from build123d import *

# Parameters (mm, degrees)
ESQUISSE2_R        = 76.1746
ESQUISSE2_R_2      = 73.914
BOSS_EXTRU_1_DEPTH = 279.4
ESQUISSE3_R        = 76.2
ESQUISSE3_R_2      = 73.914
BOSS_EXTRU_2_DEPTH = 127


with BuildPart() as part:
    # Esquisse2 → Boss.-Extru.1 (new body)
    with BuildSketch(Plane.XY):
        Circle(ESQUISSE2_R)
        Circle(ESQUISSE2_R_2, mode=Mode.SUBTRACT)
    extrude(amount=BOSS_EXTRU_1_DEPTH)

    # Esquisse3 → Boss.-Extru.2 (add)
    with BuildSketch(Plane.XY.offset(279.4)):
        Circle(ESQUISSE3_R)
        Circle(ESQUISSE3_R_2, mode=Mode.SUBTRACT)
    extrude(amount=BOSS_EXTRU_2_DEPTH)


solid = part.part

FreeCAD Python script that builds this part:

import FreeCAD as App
import Part
import Sketcher

V = App.Vector
Q = App.Units.Quantity

doc = App.newDocument("Part")
params = doc.addObject("Spreadsheet::Sheet", "Params")
for row, (alias, value) in enumerate([
    ("sketch1_diameter", "5.82 in"),
    ("sketch1_diameter2", "5.998 in"),
    ("pad1_length", "11 in"),
    ("sketch2_diameter", "6 in"),
    ("sketch2_diameter2", "5.82 in"),
    ("pad2_length", "5 in"),
], start=1):
    params.set(f"A{row}", alias)
    params.set(f"B{row}", "=" + value)
    params.setAlias(f"B{row}", alias)

body = doc.addObject("PartDesign::Body", "Body")

# Sketch on XY plane
sketch1 = body.newObject("Sketcher::SketchObject", "Sketch")
sketch1.AttachmentSupport = (doc.getObject("XY_Plane"), [""])
sketch1.MapMode = "FlatFace"
sketch1.addGeometry([
    Part.Circle(V(0, 0, 0), V(0, 0, 1), 76),
    Part.Circle(V(0, 0, 0), V(0, 0, 1), 74),
], False)
sketch1.addConstraint([
    Sketcher.Constraint("Coincident", 0, 3, -1, 1),
    Sketcher.Constraint("Coincident", 1, 3, -1, 1),
    Sketcher.Constraint("Diameter", 1, Q("5.82 in")),
    Sketcher.Constraint("Diameter", 0, Q("5.998 in")),
])
sketch1.setExpression("Constraints[2]", "Params.sketch1_diameter")
sketch1.setExpression("Constraints[3]", "Params.sketch1_diameter2")
pad1 = body.newObject("PartDesign::Pad", "Pad")
pad1.Profile = sketch1
pad1.setExpression("Length", "Params.pad1_length")

# Sketch on XY plane
sketch2 = body.newObject("Sketcher::SketchObject", "Sketch001")
sketch2.AttachmentSupport = (doc.getObject("XY_Plane"), [""])
sketch2.MapMode = "FlatFace"
sketch2.AttachmentOffset = App.Placement(V(0, 0, 11 * 25.4), App.Rotation())
sketch2.addGeometry([
    Part.Circle(V(0, 0, 0), V(0, 0, 1), 76),
    Part.Circle(V(0, 0, 0), V(0, 0, 1), 74),
], False)
sketch2.addConstraint([
    Sketcher.Constraint("Coincident", 0, 3, -1, 1),
    Sketcher.Constraint("Coincident", 1, 3, -1, 1),
    Sketcher.Constraint("Diameter", 0, Q("6 in")),
    Sketcher.Constraint("Diameter", 1, Q("5.82 in")),
])
sketch2.setExpression("Constraints[2]", "Params.sketch2_diameter")
sketch2.setExpression("Constraints[3]", "Params.sketch2_diameter2")
pad2 = body.newObject("PartDesign::Pad", "Pad001")
pad2.Profile = sketch2
pad2.setExpression("Length", "Params.pad2_length")

doc.recompute()
